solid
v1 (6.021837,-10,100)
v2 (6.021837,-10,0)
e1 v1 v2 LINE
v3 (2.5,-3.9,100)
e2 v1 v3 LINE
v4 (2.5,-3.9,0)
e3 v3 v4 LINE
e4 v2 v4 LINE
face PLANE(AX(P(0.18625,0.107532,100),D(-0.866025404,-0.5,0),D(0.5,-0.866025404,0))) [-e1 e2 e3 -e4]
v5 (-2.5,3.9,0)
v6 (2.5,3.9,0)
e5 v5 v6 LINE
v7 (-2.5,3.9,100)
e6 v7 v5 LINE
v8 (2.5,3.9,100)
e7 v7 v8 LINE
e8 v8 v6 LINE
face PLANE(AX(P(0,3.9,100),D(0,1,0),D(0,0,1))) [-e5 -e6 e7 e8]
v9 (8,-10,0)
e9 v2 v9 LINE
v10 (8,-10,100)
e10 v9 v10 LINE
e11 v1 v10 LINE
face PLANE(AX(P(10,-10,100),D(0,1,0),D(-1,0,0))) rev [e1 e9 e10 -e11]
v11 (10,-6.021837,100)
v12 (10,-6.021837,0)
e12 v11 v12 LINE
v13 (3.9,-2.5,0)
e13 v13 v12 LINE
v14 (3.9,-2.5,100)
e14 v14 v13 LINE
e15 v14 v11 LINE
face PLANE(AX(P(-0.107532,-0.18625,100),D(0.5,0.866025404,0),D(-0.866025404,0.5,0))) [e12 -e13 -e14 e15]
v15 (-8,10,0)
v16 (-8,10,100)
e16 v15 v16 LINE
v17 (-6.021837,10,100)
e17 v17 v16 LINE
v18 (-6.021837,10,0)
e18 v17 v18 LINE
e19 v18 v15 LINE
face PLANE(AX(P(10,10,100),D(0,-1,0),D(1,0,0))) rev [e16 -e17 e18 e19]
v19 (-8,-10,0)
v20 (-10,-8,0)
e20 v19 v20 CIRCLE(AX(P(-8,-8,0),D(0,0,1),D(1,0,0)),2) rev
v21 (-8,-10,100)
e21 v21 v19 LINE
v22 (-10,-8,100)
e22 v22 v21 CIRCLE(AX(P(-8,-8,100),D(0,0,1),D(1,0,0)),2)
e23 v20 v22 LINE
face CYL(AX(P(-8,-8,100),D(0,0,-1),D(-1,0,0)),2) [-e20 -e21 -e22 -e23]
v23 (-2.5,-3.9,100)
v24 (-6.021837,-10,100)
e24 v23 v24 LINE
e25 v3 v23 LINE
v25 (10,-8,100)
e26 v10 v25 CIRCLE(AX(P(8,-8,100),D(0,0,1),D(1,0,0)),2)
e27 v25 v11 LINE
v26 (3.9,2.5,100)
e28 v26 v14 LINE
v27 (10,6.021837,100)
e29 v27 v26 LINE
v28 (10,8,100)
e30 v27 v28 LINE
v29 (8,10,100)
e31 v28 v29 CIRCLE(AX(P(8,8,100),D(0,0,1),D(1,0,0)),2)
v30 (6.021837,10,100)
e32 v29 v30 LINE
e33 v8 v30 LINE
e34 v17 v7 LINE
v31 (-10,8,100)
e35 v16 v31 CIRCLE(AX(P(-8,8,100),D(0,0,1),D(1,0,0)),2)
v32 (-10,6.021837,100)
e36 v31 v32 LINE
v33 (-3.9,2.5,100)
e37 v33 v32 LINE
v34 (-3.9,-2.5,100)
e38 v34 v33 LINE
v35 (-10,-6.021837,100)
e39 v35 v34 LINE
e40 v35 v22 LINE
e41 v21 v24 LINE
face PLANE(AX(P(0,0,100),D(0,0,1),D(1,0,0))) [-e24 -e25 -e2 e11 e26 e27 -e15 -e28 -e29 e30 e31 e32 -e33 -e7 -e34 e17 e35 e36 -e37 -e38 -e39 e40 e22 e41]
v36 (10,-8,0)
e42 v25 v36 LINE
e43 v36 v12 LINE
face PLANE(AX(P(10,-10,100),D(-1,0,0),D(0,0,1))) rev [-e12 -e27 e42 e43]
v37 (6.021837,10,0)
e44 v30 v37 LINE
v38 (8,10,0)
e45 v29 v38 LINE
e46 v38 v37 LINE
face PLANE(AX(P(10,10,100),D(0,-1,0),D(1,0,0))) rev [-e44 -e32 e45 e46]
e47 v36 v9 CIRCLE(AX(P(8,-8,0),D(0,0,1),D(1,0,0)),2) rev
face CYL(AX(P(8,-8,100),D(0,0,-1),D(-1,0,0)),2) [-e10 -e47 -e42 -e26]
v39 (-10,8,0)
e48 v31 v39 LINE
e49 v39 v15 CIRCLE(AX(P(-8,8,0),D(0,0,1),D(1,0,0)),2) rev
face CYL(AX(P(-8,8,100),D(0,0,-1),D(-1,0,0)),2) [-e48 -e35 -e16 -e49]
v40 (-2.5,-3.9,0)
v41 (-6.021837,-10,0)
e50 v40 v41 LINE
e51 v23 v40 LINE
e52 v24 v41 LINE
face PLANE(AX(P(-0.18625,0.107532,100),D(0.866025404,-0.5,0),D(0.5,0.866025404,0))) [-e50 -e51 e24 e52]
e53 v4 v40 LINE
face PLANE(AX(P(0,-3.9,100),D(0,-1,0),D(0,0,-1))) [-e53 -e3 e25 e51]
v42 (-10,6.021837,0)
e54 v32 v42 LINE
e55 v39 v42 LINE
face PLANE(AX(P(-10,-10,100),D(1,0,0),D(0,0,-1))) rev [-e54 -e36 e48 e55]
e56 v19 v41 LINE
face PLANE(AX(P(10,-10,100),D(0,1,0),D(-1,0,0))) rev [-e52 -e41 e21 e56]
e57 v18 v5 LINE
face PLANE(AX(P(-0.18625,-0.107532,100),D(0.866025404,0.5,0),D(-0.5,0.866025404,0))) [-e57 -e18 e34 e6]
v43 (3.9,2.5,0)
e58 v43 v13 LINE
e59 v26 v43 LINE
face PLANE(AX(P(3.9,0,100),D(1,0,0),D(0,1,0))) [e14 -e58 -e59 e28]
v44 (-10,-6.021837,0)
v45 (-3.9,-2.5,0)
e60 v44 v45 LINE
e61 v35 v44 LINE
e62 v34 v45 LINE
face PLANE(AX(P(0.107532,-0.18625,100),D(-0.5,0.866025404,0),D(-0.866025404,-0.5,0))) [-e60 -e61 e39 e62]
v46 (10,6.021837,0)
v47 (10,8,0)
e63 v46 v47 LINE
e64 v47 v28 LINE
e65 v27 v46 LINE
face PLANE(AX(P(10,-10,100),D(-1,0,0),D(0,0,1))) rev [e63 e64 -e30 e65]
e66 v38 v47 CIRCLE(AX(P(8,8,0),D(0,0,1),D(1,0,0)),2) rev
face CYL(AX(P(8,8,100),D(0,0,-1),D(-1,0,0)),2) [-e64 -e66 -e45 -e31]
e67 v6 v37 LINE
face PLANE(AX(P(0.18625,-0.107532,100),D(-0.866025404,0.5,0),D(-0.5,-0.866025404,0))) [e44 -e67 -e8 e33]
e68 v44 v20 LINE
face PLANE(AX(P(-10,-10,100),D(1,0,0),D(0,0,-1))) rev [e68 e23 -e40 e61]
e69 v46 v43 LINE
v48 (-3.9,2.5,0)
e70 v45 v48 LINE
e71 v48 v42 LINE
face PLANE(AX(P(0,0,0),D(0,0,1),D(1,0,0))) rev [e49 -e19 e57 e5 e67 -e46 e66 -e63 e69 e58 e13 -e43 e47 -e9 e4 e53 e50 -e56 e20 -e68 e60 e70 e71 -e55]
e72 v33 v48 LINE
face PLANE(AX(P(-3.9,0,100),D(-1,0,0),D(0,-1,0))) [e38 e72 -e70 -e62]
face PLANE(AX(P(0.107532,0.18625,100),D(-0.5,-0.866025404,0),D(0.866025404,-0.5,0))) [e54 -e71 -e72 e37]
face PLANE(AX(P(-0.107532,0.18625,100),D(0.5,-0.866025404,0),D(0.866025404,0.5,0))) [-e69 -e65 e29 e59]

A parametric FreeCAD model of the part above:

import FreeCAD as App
import Part
import Sketcher
from FreeCAD import Vector
Q = App.Units.Quantity


def edges_at(feature, points):
    """Names of the edges that pass closest to the given points."""
    edges = feature.Shape.Edges
    near = lambda p: min(range(len(edges)), key=lambda i: edges[i].distToShape(Part.Vertex(*p))[0])
    return sorted({f"Edge{near(p) + 1}" for p in points})

doc = App.newDocument("Part")
body = doc.addObject("PartDesign::Body", "Body")

# Sketch on XY plane
sketch1 = doc.addObject("Sketcher::SketchObject", "Sketch")
body.addObject(sketch1)
sketch1.AttachmentSupport = (doc.XY_Plane, [""])
sketch1.MapMode = "FlatFace"
sketch1.addGeometry([
    Part.LineSegment(Vector(-10, 10, 0), Vector(-10, -10, 0)),
    Part.LineSegment(Vector(-10, -10, 0), Vector(10, -10, 0)),
    Part.LineSegment(Vector(10, -10, 0), Vector(10, 10, 0)),
    Part.LineSegment(Vector(10, 10, 0), Vector(-10, 10, 0)),
], False)
sketch1.addConstraint([
    Sketcher.Constraint("Coincident", 0, 2, 1, 1),
    Sketcher.Constraint("Coincident", 1, 2, 2, 1),
    Sketcher.Constraint("Coincident", 2, 2, 3, 1),
    Sketcher.Constraint("Coincident", 3, 2, 0, 1),
    Sketcher.Constraint("Vertical", 0),
    Sketcher.Constraint("Horizontal", 1),
    Sketcher.Constraint("Vertical", 2),
    Sketcher.Constraint("Horizontal", 3),
    Sketcher.Constraint("Symmetric", 0, 2, 2, 2, -1, 1),
    Sketcher.Constraint("Equal", 3, 0),
    Sketcher.Constraint("DistanceX", 1, 1, 1, 2, Q("20 mm")),
])
pad1 = doc.addObject("PartDesign::Pad", "Pad")
body.addObject(pad1)
pad1.Profile = sketch1
pad1.Length = 100

# Sketch on XY plane
sketch2 = doc.addObject("Sketcher::SketchObject", "Sketch001")
body.addObject(sketch2)
sketch2.AttachmentSupport = (doc.XY_Plane, [""])
sketch2.MapMode = "FlatFace"
sketch2.addGeometry([
    Part.LineSegment(Vector(6, 10, 0), Vector(-6, 10, 0)),
    Part.LineSegment(Vector(-6, 10, 0), Vector(-2, 4, 0)),
    Part.LineSegment(Vector(-2, 4, 0), Vector(2, 4, 0)),
    Part.LineSegment(Vector(2, 4, 0), Vector(6, 10, 0)),
], False)
sketch2.addConstraint([
    Sketcher.Constraint("Coincident", 0, 2, 1, 1),
    Sketcher.Constraint("Coincident", 1, 2, 2, 1),
    Sketcher.Constraint("Coincident", 2, 2, 3, 1),
    Sketcher.Constraint("Coincident", 3, 2, 0, 1),
    Sketcher.Constraint("Horizontal", 0),
    Sketcher.Constraint("Horizontal", 2),
    Sketcher.Constraint("Equal", 1, 3),
    Sketcher.Constraint("DistanceX", 2, 1, 2, 2, Q("5 mm")),
    Sketcher.Constraint("Angle", 1, Q("-60 deg")),
    Sketcher.Constraint("DistanceY", -1, 1, 0, 2, Q("10 mm")),
    Sketcher.Constraint("DistanceX", 1, 2, -1, 1, Q("2.5 mm")),
    Sketcher.Constraint("DistanceY", -1, 1, 1, 2, Q("3.9 mm")),
])
pocket1 = doc.addObject("PartDesign::Pocket", "Pocket")
body.addObject(pocket1)
pocket1.Profile = sketch2
pocket1.Type = "ThroughAll"
pocket1.Reversed = True
doc.recompute()

polarpattern = doc.addObject("PartDesign::PolarPattern", "PolarPattern")
body.addObject(polarpattern)
polarpattern.Originals = [pocket1]
polarpattern.Axis = (doc.Z_Axis, [""])
polarpattern.Angle = 360
polarpattern.Occurrences = 4
body.Tip = polarpattern
doc.recompute()

fillet = doc.addObject("PartDesign::Fillet", "Fillet")
body.addObject(fillet)
fillet.Base = (polarpattern, edges_at(polarpattern, [
    (-10, 10, 50),
    (10, 10, 50),
    (10, -10, 50),
    (-10, -10, 50),
]))
fillet.Radius = 2

doc.recompute()
